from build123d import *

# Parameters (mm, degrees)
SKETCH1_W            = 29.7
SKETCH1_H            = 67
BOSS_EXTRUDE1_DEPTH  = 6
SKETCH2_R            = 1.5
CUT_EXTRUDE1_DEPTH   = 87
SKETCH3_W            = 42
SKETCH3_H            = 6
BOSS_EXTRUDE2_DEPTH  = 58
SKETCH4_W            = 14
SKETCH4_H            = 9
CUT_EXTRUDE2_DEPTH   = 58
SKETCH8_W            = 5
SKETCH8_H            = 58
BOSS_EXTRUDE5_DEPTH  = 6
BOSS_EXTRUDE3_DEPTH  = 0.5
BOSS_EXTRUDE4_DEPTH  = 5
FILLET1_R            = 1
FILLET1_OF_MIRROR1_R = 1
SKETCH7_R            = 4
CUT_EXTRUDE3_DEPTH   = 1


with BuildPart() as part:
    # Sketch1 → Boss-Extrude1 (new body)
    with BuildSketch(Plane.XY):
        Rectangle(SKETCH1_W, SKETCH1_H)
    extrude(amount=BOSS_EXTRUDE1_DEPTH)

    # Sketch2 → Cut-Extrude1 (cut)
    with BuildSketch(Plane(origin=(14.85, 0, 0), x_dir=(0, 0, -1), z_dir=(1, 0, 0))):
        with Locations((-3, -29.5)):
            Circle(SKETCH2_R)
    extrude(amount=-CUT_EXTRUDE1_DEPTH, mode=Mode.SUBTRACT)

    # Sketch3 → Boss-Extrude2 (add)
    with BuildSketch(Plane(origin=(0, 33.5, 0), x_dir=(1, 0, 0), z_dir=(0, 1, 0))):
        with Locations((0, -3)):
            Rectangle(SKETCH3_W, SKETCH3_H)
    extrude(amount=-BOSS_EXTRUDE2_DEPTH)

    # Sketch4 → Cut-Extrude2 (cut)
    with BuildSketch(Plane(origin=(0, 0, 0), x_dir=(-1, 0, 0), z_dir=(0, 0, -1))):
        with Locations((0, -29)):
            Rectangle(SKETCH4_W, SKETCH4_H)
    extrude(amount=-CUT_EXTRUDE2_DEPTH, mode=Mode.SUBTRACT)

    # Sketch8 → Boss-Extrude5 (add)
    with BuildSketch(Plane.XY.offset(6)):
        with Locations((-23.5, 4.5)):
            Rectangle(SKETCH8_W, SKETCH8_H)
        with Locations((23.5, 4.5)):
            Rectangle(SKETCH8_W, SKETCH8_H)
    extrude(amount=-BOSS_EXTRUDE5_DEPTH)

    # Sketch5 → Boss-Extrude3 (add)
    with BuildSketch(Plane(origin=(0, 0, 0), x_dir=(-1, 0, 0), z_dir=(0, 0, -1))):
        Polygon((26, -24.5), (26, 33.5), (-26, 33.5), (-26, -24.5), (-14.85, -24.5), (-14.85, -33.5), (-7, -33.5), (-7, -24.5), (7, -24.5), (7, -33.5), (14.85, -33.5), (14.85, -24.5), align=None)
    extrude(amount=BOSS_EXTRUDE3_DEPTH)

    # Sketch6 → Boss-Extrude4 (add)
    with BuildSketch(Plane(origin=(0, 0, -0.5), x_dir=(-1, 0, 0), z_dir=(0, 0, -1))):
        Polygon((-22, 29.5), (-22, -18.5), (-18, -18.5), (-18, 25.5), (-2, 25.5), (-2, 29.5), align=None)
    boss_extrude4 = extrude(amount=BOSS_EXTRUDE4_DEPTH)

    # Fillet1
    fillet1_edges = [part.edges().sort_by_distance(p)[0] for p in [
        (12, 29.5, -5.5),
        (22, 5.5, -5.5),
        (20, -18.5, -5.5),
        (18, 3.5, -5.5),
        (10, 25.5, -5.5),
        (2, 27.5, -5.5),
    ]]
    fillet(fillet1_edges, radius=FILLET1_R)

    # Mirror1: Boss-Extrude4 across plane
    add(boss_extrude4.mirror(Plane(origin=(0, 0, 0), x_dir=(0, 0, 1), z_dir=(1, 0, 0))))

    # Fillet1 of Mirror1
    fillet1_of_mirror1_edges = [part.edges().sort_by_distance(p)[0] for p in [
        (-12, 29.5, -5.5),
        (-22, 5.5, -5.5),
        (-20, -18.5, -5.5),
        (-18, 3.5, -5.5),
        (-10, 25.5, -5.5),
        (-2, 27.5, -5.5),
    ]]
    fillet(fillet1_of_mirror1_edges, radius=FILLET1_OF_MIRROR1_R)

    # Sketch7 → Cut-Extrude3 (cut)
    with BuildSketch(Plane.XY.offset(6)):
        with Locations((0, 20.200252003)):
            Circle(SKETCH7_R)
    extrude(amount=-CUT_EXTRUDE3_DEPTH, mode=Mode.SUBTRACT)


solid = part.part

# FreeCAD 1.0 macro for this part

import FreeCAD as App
import Part
import Sketcher

V = App.Vector
Q = App.Units.Quantity


def edges_at(feature, points):
    """Names of the edges that pass closest to the given points."""
    edges = feature.Shape.Edges
    near = lambda p: min(range(len(edges)), key=lambda i: edges[i].distToShape(Part.Vertex(*p))[0])
    return sorted({f"Edge{near(p) + 1}" for p in points})


def add_polygon(sketch, points):
    """Adds a closed chain of lines whose ends are joined by coincident constraints."""
    first, n = sketch.GeometryCount, len(points)
    for a, b in zip(points, points[1:] + points[:1]):
        sketch.addGeometry(Part.LineSegment(App.Vector(*a, 0), App.Vector(*b, 0)), False)
    for i in range(n):
        sketch.addConstraint(Sketcher.Constraint("Coincident", first + i, 2, first + (i + 1) % n, 1))

doc = App.newDocument("Part")
body = doc.addObject("PartDesign::Body", "Body")

# Sketch on XY plane
sketch1 = body.newObject("Sketcher::SketchObject", "Sketch")
sketch1.AttachmentSupport = (doc.getObject("XY_Plane"), [""])
sketch1.MapMode = "FlatFace"
add_polygon(sketch1, [(-14.85, 33.5), (-14.85, -33.5), (14.85, -33.5), (14.85, 33.5)])  # lines 0-3
sketch1.addConstraint([
    Sketcher.Constraint("Vertical", 0),
    Sketcher.Constraint("Horizontal", 1),
    Sketcher.Constraint("Vertical", 2),
    Sketcher.Constraint("Horizontal", 3),
    Sketcher.Constraint("Symmetric", 0, 2, 2, 2, -1, 1),
    Sketcher.Constraint("DistanceY", 0, 2, 0, 1, Q("67 mm")),
    Sketcher.Constraint("DistanceX", 1, 1, 1, 2, Q("29.7 mm")),
])
pad1 = body.newObject("PartDesign::Pad", "Pad")
pad1.Profile = sketch1
pad1.Length = 6

# Sketch on YZ plane
sketch2 = body.newObject("Sketcher::SketchObject", "Sketch001")
sketch2.AttachmentSupport = (doc.getObject("YZ_Plane"), [""])
sketch2.MapMode = "FlatFace"
sketch2.AttachmentOffset = App.Placement(V(0, 0, 14.85), App.Rotation())
sketch2.addGeometry(Part.Circle(V(-29.5, 3, 0), V(0, 0, 1), 1.5), False)
sketch2.addConstraint([
    Sketcher.Constraint("Diameter", 0, Q("3 mm")),
    Sketcher.Constraint("DistanceY", -1, 1, 0, 3, Q("3 mm")),
    Sketcher.Constraint("DistanceX", 0, 3, -1, 1, Q("29.5 mm")),
])
pocket1 = body.newObject("PartDesign::Pocket", "Pocket")
pocket1.Profile = sketch2
pocket1.Length = 87

# Sketch on XZ plane
sketch3 = body.newObject("Sketcher::SketchObject", "Sketch002")
sketch3.AttachmentSupport = (doc.getObject("XZ_Plane"), [""])
sketch3.MapMode = "FlatFace"
sketch3.AttachmentOffset = App.Placement(V(0, 0, -33.5), App.Rotation())
add_polygon(sketch3, [(-21, 0), (-21, 6), (21, 6), (21, 0)])  # lines 0-3
sketch3.addConstraint([
    Sketcher.Constraint("Vertical", 0),
    Sketcher.Constraint("Horizontal", 1),
    Sketcher.Constraint("Vertical", 2),
    Sketcher.Constraint("Horizontal", 3),
    Sketcher.Constraint("Symmetric", 2, 2, 3, 2, -1, 1),
    Sketcher.Constraint("DistanceX", 1, 1, 1, 2, Q("42 mm")),
    Sketcher.Constraint("DistanceY", 0, 1, 0, 2, Q("6 mm")),
])
pad2 = body.newObject("PartDesign::Pad", "Pad001")
pad2.Profile = sketch3
pad2.Length = 58

# Sketch on XY plane
sketch4 = body.newObject("Sketcher::SketchObject", "Sketch003")
sketch4.AttachmentSupport = (doc.getObject("XY_Plane"), [""])
sketch4.MapMode = "FlatFace"
add_polygon(sketch4, [(7, -24.5), (7, -33.5), (-7, -33.5), (-7, -24.5)])  # lines 0-3
sketch4.addConstraint([
    Sketcher.Constraint("Vertical", 0),
    Sketcher.Constraint("Horizontal", 1),
    Sketcher.Constraint("Vertical", 2),
    Sketcher.Constraint("Horizontal", 3),
    Sketcher.Constraint("DistanceX", 1, 2, 1, 1, Q("14 mm")),
    Sketcher.Constraint("DistanceY", 0, 2, 0, 1, Q("9 mm")),
    Sketcher.Constraint("DistanceX", -1, 1, 0, 2, Q("7 mm")),
    Sketcher.Constraint("DistanceY", 0, 2, -1, 1, Q("33.5 mm")),
])
pocket2 = body.newObject("PartDesign::Pocket", "Pocket001")
pocket2.Profile = sketch4
pocket2.Length = 58
pocket2.Reversed = True

# Sketch on XY plane
sketch5 = body.newObject("Sketcher::SketchObject", "Sketch004")
sketch5.AttachmentSupport = (doc.getObject("XY_Plane"), [""])
sketch5.MapMode = "FlatFace"
sketch5.AttachmentOffset = App.Placement(V(0, 0, 6), App.Rotation())
add_polygon(sketch5, [(-26, 33.5), (-26, -24.5), (-21, -24.5), (-21, 33.5)])  # lines 0-3
add_polygon(sketch5, [(21, 33.5), (21, -24.5), (26, -24.5), (26, 33.5)])  # lines 4-7
sketch5.addConstraint([
    Sketcher.Constraint("Vertical", 0),
    Sketcher.Constraint("Horizontal", 1),
    Sketcher.Constraint("Vertical", 2),
    Sketcher.Constraint("Horizontal", 3),
    Sketcher.Constraint("Vertical", 4),
    Sketcher.Constraint("Horizontal", 5),
    Sketcher.Constraint("Vertical", 6),
    Sketcher.Constraint("Horizontal", 7),
    Sketcher.Constraint("Symmetric", 1, 2, 4, 2, -2),
    Sketcher.Constraint("Symmetric", 3, 2, 6, 2, -2),
    Sketcher.Constraint("DistanceX", 1, 1, 1, 2, Q("5 mm")),
    Sketcher.Constraint("DistanceY", 0, 2, 0, 1, Q("58 mm")),
    Sketcher.Constraint("DistanceX", 0, 2, -1, 1, Q("26 mm")),
    Sketcher.Constraint("DistanceY", 0, 2, -1, 1, Q("24.5 mm")),
])
pad3 = body.newObject("PartDesign::Pad", "Pad002")
pad3.Profile = sketch5
pad3.Length = 6
pad3.Reversed = True

# Sketch on XY plane
sketch6 = body.newObject("Sketcher::SketchObject", "Sketch005")
sketch6.AttachmentSupport = (doc.getObject("XY_Plane"), [""])
sketch6.MapMode = "FlatFace"
add_polygon(sketch6, [(-26, -24.5), (-26, 33.5), (26, 33.5), (26, -24.5), (14.85, -24.5), (14.85, -33.5), (7, -33.5), (7, -24.5), (-7, -24.5), (-7, -33.5), (-14.85, -33.5), (-14.85, -24.5)])  # lines 0-11
sketch6.addConstraint([
    Sketcher.Constraint("Vertical", 0),
    Sketcher.Constraint("Horizontal", 1),
    Sketcher.Constraint("Vertical", 2),
    Sketcher.Constraint("Horizontal", 3),
    Sketcher.Constraint("Vertical", 4),
    Sketcher.Constraint("Horizontal", 5),
    Sketcher.Constraint("Vertical", 6),
    Sketcher.Constraint("Horizontal", 7),
    Sketcher.Constraint("Vertical", 8),
    Sketcher.Constraint("Horizontal", 9),
    Sketcher.Constraint("Vertical", 10),
    Sketcher.Constraint("Horizontal", 11),
    Sketcher.Constraint("Symmetric", 5, 2, 8, 2, -2),
    Sketcher.Constraint("Symmetric", 3, 2, 10, 2, -2),
    Sketcher.Constraint("Horizontal", 3, 2, 6, 2),
    Sketcher.Constraint("Equal", 3, 11),
    Sketcher.Constraint("DistanceX", 1, 1, 1, 2, Q("52 mm")),
    Sketcher.Constraint("DistanceX", 7, 2, 7, 1, Q("14 mm")),
    Sketcher.Constraint("DistanceY", 0, 1, 0, 2, Q("58 mm")),
    Sketcher.Constraint("DistanceY", 4, 2, 4, 1, Q("9 mm")),
    Sketcher.Constraint("DistanceX", 3, 2, 3, 1, Q("11.15 mm")),
    Sketcher.Constraint("DistanceY", -1, 1, 0, 2, Q("33.5 mm")),
])
pad4 = body.newObject("PartDesign::Pad", "Pad003")
pad4.Profile = sketch6
pad4.Length = 0.5
pad4.Reversed = True

# Sketch on XY plane
sketch7 = body.newObject("Sketcher::SketchObject", "Sketch006")
sketch7.AttachmentSupport = (doc.getObject("XY_Plane"), [""])
sketch7.MapMode = "FlatFace"
sketch7.AttachmentOffset = App.Placement(V(0, 0, -0.5), App.Rotation())
add_polygon(sketch7, [(22, 29.5), (22, -18.5), (18, -18.5), (18, 25.5), (2, 25.5), (2, 29.5)])  # lines 0-5
sketch7.addConstraint([
    Sketcher.Constraint("Vertical", 0),
    Sketcher.Constraint("Horizontal", 1),
    Sketcher.Constraint("Vertical", 2),
    Sketcher.Constraint("Horizontal", 3),
    Sketcher.Constraint("Vertical", 4),
    Sketcher.Constraint("Horizontal", 5),
    Sketcher.Constraint("Equal", 1, 4),
    Sketcher.Constraint("DistanceX", 1, 2, 1, 1, Q("4 mm")),
    Sketcher.Constraint("DistanceX", 3, 2, 3, 1, Q("16 mm")),
    Sketcher.Constraint("DistanceY", 0, 2, 0, 1, Q("48 mm")),
    Sketcher.Constraint("DistanceX", -1, 1, 0, 2, Q("22 mm")),
    Sketcher.Constraint("DistanceY", 0, 2, -1, 1, Q("18.5 mm")),
])
pad5 = body.newObject("PartDesign::Pad", "Pad004")
pad5.Profile = sketch7
pad5.Length = 5
pad5.Reversed = True
doc.recompute()

fillet = body.newObject("PartDesign::Fillet", "Fillet")
fillet.Base = (pad5, edges_at(pad5, [
    (12, 29.5, -5.5),
    (22, 5.5, -5.5),
    (20, -18.5, -5.5),
    (18, 3.5, -5.5),
    (10, 25.5, -5.5),
    (2, 27.5, -5.5),
]))
fillet.Radius = 1
doc.recompute()

mirrored = body.newObject("PartDesign::Mirrored", "Mirrored")
mirrored.Originals = [pad5]
mirrored.MirrorPlane = (doc.getObject("YZ_Plane"), [""])
body.Tip = mirrored
doc.recompute()

fillet2 = body.newObject("PartDesign::Fillet", "Fillet001")
fillet2.Base = (mirrored, edges_at(mirrored, [
    (-12, 29.5, -5.5),
    (-22, 5.5, -5.5),
    (-20, -18.5, -5.5),
    (-18, 3.5, -5.5),
    (-10, 25.5, -5.5),
    (-2, 27.5, -5.5),
]))
fillet2.Radius = 1

# Sketch on XY plane
sketch8 = body.newObject("Sketcher::SketchObject", "Sketch007")
sketch8.AttachmentSupport = (doc.getObject("XY_Plane"), [""])
sketch8.MapMode = "FlatFace"
sketch8.AttachmentOffset = App.Placement(V(0, 0, 6), App.Rotation())
sketch8.addGeometry(Part.Circle(V(0, 20.200252, 0), V(0, 0, 1), 4), False)
sketch8.addConstraint([
    Sketcher.Constraint("PointOnObject", 0, 3, -2),
    Sketcher.Constraint("Diameter", 0, Q("8 mm")),
    Sketcher.Constraint("DistanceY", -1, 1, 0, 3, Q("20.200252 mm")),
])
pocket3 = body.newObject("PartDesign::Pocket", "Pocket002")
pocket3.Profile = sketch8
pocket3.Length = 1

doc.recompute()
